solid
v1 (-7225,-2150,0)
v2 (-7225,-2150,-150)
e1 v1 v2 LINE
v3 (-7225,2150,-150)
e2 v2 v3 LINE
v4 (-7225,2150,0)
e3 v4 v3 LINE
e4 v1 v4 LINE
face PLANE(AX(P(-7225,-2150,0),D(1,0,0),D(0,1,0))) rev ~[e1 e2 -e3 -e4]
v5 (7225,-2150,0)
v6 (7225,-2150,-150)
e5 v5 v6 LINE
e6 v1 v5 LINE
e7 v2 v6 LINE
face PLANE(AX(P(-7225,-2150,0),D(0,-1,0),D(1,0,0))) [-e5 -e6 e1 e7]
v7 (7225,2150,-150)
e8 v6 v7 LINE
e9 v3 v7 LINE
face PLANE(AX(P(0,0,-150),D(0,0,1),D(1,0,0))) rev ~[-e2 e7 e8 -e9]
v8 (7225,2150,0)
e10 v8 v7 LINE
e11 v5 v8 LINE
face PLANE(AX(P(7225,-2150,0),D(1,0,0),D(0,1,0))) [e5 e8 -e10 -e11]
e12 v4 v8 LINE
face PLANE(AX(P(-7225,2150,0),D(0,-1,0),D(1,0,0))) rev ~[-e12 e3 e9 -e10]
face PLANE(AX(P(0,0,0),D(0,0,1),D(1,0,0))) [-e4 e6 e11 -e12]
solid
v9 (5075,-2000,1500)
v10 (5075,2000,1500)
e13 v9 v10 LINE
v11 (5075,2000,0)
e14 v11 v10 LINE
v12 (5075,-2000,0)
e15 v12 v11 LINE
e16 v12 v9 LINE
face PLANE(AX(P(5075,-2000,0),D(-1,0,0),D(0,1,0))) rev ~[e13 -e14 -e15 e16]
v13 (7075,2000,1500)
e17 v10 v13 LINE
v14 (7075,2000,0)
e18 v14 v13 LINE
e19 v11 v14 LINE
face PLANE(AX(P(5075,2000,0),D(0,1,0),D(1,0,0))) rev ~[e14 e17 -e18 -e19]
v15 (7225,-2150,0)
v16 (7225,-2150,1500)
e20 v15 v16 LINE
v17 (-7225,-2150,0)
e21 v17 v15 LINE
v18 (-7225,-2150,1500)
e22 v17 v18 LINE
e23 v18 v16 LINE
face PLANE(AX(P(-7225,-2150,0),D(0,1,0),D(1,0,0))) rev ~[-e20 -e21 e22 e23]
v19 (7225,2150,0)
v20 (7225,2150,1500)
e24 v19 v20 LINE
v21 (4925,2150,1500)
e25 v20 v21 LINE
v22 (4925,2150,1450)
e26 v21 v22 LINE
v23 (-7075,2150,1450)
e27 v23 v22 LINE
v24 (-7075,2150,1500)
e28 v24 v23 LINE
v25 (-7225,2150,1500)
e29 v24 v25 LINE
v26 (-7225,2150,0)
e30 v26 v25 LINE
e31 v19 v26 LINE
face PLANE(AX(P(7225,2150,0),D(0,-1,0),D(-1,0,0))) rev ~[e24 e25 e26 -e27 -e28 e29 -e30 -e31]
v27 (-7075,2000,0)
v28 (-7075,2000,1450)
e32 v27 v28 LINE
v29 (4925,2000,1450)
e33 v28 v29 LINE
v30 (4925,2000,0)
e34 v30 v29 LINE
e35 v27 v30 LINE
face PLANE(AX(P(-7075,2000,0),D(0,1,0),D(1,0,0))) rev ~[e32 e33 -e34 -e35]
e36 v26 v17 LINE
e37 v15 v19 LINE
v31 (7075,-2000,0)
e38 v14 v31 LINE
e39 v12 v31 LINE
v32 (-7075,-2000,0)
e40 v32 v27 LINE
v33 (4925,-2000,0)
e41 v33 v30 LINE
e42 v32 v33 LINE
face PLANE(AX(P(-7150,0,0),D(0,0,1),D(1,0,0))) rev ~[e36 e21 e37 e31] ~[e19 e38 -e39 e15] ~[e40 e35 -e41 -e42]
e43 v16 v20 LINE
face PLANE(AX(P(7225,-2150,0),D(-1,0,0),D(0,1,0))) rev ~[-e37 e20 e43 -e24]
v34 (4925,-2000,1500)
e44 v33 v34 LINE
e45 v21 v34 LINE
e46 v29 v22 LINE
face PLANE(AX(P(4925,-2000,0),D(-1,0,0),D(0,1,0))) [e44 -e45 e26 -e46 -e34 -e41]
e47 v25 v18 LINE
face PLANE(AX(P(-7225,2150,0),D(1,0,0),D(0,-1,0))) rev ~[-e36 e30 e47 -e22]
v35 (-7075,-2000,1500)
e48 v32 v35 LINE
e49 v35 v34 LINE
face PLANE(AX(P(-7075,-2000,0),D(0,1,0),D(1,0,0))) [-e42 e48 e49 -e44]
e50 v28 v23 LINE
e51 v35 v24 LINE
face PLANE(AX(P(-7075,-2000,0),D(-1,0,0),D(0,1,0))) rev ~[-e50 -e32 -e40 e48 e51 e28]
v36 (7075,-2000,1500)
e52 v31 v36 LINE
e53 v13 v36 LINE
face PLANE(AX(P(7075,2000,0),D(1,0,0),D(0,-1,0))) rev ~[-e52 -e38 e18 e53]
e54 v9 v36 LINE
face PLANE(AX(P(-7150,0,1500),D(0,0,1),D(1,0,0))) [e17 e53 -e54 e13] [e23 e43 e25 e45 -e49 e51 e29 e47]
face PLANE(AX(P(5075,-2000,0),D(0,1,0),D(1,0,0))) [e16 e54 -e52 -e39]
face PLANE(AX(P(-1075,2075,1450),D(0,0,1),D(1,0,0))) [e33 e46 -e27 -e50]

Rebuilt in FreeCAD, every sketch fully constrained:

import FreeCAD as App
import Part
import Sketcher


def add_polygon(sketch, points):
    """Adds a closed chain of lines whose ends are joined by coincident constraints."""
    first, n = sketch.GeometryCount, len(points)
    for a, b in zip(points, points[1:] + points[:1]):
        sketch.addGeometry(Part.LineSegment(App.Vector(*a, 0), App.Vector(*b, 0)), False)
    for i in range(n):
        sketch.addConstraint(Sketcher.Constraint("Coincident", first + i, 2, first + (i + 1) % n, 1))

doc = App.newDocument("Part")
body = doc.addObject("PartDesign::Body", "Body")

# Sketch on XY plane
sketch1 = body.newObject("Sketcher::SketchObject", "Sketch")
sketch1.AttachmentSupport = (doc.getObject("XY_Plane"), [""])
sketch1.MapMode = "FlatFace"
add_polygon(sketch1, [(-7225, 2150), (-7225, -2150), (7225, -2150), (7225, 2150)])  # lines 0-3
sketch1.addConstraint([
    Sketcher.Constraint("Vertical", 0),
    Sketcher.Constraint("Horizontal", 1),
    Sketcher.Constraint("Vertical", 2),
    Sketcher.Constraint("Horizontal", 3),
    Sketcher.Constraint("Symmetric", 0, 2, 2, 2, -1, 1),
    Sketcher.Constraint("DistanceX", 1, 1, 1, 2, 14450.0),
    Sketcher.Constraint("DistanceY", 0, 2, 0, 1, 4300.0),
])
pad1 = body.newObject("PartDesign::Pad", "Pad")
pad1.Profile = sketch1
pad1.Length = 150
pad1.Reversed = True
body2 = doc.addObject("PartDesign::Body", "Body001")

# Sketch on XY plane
sketch2 = body2.newObject("Sketcher::SketchObject", "Sketch001")
sketch2.AttachmentSupport = (doc.getObject("XY_Plane001"), [""])
sketch2.MapMode = "FlatFace"
add_polygon(sketch2, [(-7225, -2150), (7225, -2150), (7225, 2150), (-7225, 2150)])  # lines 0-3
add_polygon(sketch2, [(4925, -2000), (-7075, -2000), (-7075, 2000), (4925, 2000)])  # lines 4-7
add_polygon(sketch2, [(7075, -2000), (5075, -2000), (5075, 2000), (7075, 2000)])  # lines 8-11
sketch2.addConstraint([
    Sketcher.Constraint("Horizontal", 0),
    Sketcher.Constraint("Vertical", 1),
    Sketcher.Constraint("Horizontal", 2),
    Sketcher.Constraint("Vertical", 3),
    Sketcher.Constraint("Horizontal", 4),
    Sketcher.Constraint("Vertical", 5),
    Sketcher.Constraint("Horizontal", 6),
    Sketcher.Constraint("Vertical", 7),
    Sketcher.Constraint("Horizontal", 8),
    Sketcher.Constraint("Vertical", 9),
    Sketcher.Constraint("Horizontal", 10),
    Sketcher.Constraint("Vertical", 11),
    Sketcher.Constraint("Symmetric", 0, 2, 2, 2, -1, 1),
    Sketcher.Constraint("Symmetric", 4, 2, 10, 2, -1, 1),
    Sketcher.Constraint("Horizontal", 7, 2, 8, 2),
    Sketcher.Constraint("Horizontal", 6, 2, 9, 2),
    Sketcher.Constraint("DistanceX", 0, 1, 0, 2, 14450.0),
    Sketcher.Constraint("DistanceX", 4, 2, 4, 1, 12000.0),
    Sketcher.Constraint("DistanceX", 8, 2, 8, 1, 2000.0),
    Sketcher.Constraint("DistanceY", 1, 1, 1, 2, 4300.0),
    Sketcher.Constraint("DistanceY", 5, 1, 5, 2, 4000.0),
    Sketcher.Constraint("DistanceX", 4, 2, -1, 1, 7075.0),
])
pad2 = body2.newObject("PartDesign::Pad", "Pad001")
pad2.Profile = sketch2
pad2.Length = 1500

# Sketch on XY plane
sketch3 = body2.newObject("Sketcher::SketchObject", "Sketch002")
sketch3.AttachmentSupport = (doc.getObject("XY_Plane001"), [""])
sketch3.MapMode = "FlatFace"
sketch3.AttachmentOffset = App.Placement(App.Vector(0, 0, 1500), App.Rotation())
add_polygon(sketch3, [(-7075, 2150), (-7075, 2000), (4925, 2000), (4925, 2150)])  # lines 0-3
sketch3.addConstraint([
    Sketcher.Constraint("Vertical", 0),
    Sketcher.Constraint("Horizontal", 1),
    Sketcher.Constraint("Vertical", 2),
    Sketcher.Constraint("Horizontal", 3),
    Sketcher.Constraint("DistanceX", 1, 1, 1, 2, 12000.0),
    Sketcher.Constraint("DistanceY", 0, 2, 0, 1, 150.0),
    Sketcher.Constraint("DistanceX", 0, 2, -1, 1, 7075.0),
    Sketcher.Constraint("DistanceY", -1, 1, 0, 2, 2000.0),
])
pocket1 = body2.newObject("PartDesign::Pocket", "Pocket")
pocket1.Profile = sketch3
pocket1.Length = 50

doc.recompute()
